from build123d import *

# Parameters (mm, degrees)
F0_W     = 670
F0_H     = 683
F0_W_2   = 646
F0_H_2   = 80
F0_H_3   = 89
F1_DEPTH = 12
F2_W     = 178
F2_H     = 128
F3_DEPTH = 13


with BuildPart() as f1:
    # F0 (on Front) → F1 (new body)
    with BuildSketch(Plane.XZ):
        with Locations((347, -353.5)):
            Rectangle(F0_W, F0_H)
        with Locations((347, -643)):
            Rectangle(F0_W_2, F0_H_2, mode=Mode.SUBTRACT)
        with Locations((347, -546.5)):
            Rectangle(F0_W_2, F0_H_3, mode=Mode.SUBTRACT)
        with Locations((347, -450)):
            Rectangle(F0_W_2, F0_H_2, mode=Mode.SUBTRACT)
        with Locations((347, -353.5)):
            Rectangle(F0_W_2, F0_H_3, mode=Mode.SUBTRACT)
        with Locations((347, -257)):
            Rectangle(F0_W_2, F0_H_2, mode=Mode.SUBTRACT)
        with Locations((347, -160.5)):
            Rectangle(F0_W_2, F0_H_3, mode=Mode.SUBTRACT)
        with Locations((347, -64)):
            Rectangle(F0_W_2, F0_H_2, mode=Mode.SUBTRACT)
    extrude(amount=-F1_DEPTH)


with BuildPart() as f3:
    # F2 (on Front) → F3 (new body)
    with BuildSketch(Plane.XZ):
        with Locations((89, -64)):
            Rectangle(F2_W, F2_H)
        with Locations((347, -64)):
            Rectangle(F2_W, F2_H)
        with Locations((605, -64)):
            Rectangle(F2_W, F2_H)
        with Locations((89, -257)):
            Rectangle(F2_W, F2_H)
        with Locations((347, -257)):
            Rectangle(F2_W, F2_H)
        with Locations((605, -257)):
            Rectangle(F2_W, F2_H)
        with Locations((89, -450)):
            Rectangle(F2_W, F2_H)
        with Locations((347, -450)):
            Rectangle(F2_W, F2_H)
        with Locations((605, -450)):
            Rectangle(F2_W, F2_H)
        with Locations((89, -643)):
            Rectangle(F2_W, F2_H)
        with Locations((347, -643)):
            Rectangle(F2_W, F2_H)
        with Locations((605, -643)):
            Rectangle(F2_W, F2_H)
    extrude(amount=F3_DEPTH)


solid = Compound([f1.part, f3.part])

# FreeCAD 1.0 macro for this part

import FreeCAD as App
import Part
import Sketcher
from FreeCAD import Vector


def add_polygon(sketch, points):
    """Adds a closed chain of lines whose ends are joined by coincident constraints."""
    first, n = sketch.GeometryCount, len(points)
    for a, b in zip(points, points[1:] + points[:1]):
        sketch.addGeometry(Part.LineSegment(App.Vector(*a, 0), App.Vector(*b, 0)), False)
    for i in range(n):
        sketch.addConstraint(Sketcher.Constraint("Coincident", first + i, 2, first + (i + 1) % n, 1))

doc = App.newDocument("Part")
body = doc.addObject("PartDesign::Body", "Body")

sketch1 = body.newObject("Sketcher::SketchObject", "Sketch")
sketch1.AttachmentSupport = (doc.getObject("XZ_Plane"), [""])
sketch1.MapMode = "FlatFace"
add_polygon(sketch1, [(12, -12), (12, -695), (682, -695), (682, -12)])
add_polygon(sketch1, [(670, -683), (24, -683), (24, -603), (670, -603)])
add_polygon(sketch1, [(670, -591), (24, -591), (24, -502), (670, -502)])
add_polygon(sketch1, [(670, -490), (24, -490), (24, -410), (670, -410)])
add_polygon(sketch1, [(670, -398), (24, -398), (24, -309), (670, -309)])
add_polygon(sketch1, [(670, -297), (24, -297), (24, -217), (670, -217)])
add_polygon(sketch1, [(670, -205), (24, -205), (24, -116), (670, -116)])
add_polygon(sketch1, [(670, -104), (24, -104), (24, -24), (670, -24)])
sketch1.addConstraint([
    Sketcher.Constraint("Vertical", 0),
    Sketcher.Constraint("Horizontal", 1),
    Sketcher.Constraint("Vertical", 2),
    Sketcher.Constraint("Horizontal", 3),
    Sketcher.Constraint("Horizontal", 4),
    Sketcher.Constraint("Vertical", 5),
    Sketcher.Constraint("Horizontal", 6),
    Sketcher.Constraint("Vertical", 7),
    Sketcher.Constraint("Horizontal", 8),
    Sketcher.Constraint("Vertical", 9),
    Sketcher.Constraint("Horizontal", 10),
    Sketcher.Constraint("Vertical", 11),
    Sketcher.Constraint("Horizontal", 12),
    Sketcher.Constraint("Vertical", 13),
    Sketcher.Constraint("Horizontal", 14),
    Sketcher.Constraint("Vertical", 15),
    Sketcher.Constraint("Horizontal", 16),
    Sketcher.Constraint("Vertical", 17),
    Sketcher.Constraint("Horizontal", 18),
    Sketcher.Constraint("Vertical", 19),
    Sketcher.Constraint("Horizontal", 20),
    Sketcher.Constraint("Vertical", 21),
    Sketcher.Constraint("Horizontal", 22),
    Sketcher.Constraint("Vertical", 23),
    Sketcher.Constraint("Horizontal", 24),
    Sketcher.Constraint("Vertical", 25),
    Sketcher.Constraint("Horizontal", 26),
    Sketcher.Constraint("Vertical", 27),
    Sketcher.Constraint("Horizontal", 28),
    Sketcher.Constraint("Vertical", 29),
    Sketcher.Constraint("Horizontal", 30),
    Sketcher.Constraint("Vertical", 31),
    Sketcher.Constraint("Vertical", 5, 2, 8, 2),
    Sketcher.Constraint("Vertical", 7, 2, 10, 2),
    Sketcher.Constraint("Vertical", 9, 2, 12, 2),
    Sketcher.Constraint("Vertical", 11, 2, 14, 2),
    Sketcher.Constraint("Vertical", 13, 2, 16, 2),
    Sketcher.Constraint("Vertical", 15, 2, 18, 2),
    Sketcher.Constraint("Vertical", 17, 2, 20, 2),
    Sketcher.Constraint("Vertical", 19, 2, 22, 2),
    Sketcher.Constraint("Vertical", 21, 2, 24, 2),
    Sketcher.Constraint("Vertical", 23, 2, 26, 2),
    Sketcher.Constraint("Vertical", 25, 2, 28, 2),
    Sketcher.Constraint("Vertical", 27, 2, 30, 2),
    Sketcher.Constraint("Equal", 7, 13),
    Sketcher.Constraint("Equal", 11, 17),
    Sketcher.Constraint("Equal", 15, 21),
    Sketcher.Constraint("Equal", 19, 25),
    Sketcher.Constraint("Equal", 23, 29),
    Sketcher.Constraint("DistanceX", 1, 1, 1, 2, 670.0),
    Sketcher.Constraint("DistanceX", 4, 2, 4, 1, 646.0),
    Sketcher.Constraint("DistanceY", 0, 2, 0, 1, 683.0),
    Sketcher.Constraint("DistanceY", 5, 1, 5, 2, 80.0),
    Sketcher.Constraint("DistanceY", 9, 1, 9, 2, 89.0),
    Sketcher.Constraint("DistanceX", -1, 1, 0, 2, 12.0),
    Sketcher.Constraint("DistanceY", 0, 2, -1, 1, 695.0),
    Sketcher.Constraint("DistanceX", -1, 1, 4, 2, 24.0),
    Sketcher.Constraint("DistanceY", 4, 2, -1, 1, 683.0),
    Sketcher.Constraint("DistanceY", 8, 2, -1, 1, 591.0),
    Sketcher.Constraint("DistanceY", 12, 2, -1, 1, 490.0),
    Sketcher.Constraint("DistanceY", 16, 2, -1, 1, 398.0),
    Sketcher.Constraint("DistanceY", 20, 2, -1, 1, 297.0),
    Sketcher.Constraint("DistanceY", 24, 2, -1, 1, 205.0),
    Sketcher.Constraint("DistanceY", 28, 2, -1, 1, 104.0),
])
pad1 = body.newObject("PartDesign::Pad", "Pad")
pad1.Profile = sketch1
pad1.Length = 12
pad1.Reversed = True
body2 = doc.addObject("PartDesign::Body", "Body001")
body2.AllowCompound = True

sketch2 = body2.newObject("Sketcher::SketchObject", "Sketch001")
sketch2.AttachmentSupport = (doc.getObject("XZ_Plane001"), [""])
sketch2.MapMode = "FlatFace"
add_polygon(sketch2, [(0, 0), (0, -128), (178, -128), (178, 0)])
add_polygon(sketch2, [(258, 0), (258, -128), (436, -128), (436, 0)])
add_polygon(sketch2, [(516, 0), (516, -128), (694, -128), (694, 0)])
add_polygon(sketch2, [(0, -193), (0, -321), (178, -321), (178, -193)])
add_polygon(sketch2, [(258, -193), (258, -321), (436, -321), (436, -193)])
add_polygon(sketch2, [(516, -193), (516, -321), (694, -321), (694, -193)])
add_polygon(sketch2, [(0, -386), (0, -514), (178, -514), (178, -386)])
add_polygon(sketch2, [(258, -386), (258, -514), (436, -514), (436, -386)])
add_polygon(sketch2, [(516, -386), (516, -514), (694, -514), (694, -386)])
add_polygon(sketch2, [(0, -579), (0, -707), (178, -707), (178, -579)])
add_polygon(sketch2, [(258, -579), (258, -707), (436, -707), (436, -579)])
add_polygon(sketch2, [(516, -579), (516, -707), (694, -707), (694, -579)])
sketch2.addConstraint([
    Sketcher.Constraint("Vertical", 0),
    Sketcher.Constraint("Horizontal", 1),
    Sketcher.Constraint("Vertical", 2),
    Sketcher.Constraint("Horizontal", 3),
    Sketcher.Constraint("Vertical", 4),
    Sketcher.Constraint("Horizontal", 5),
    Sketcher.Constraint("Vertical", 6),
    Sketcher.Constraint("Horizontal", 7),
    Sketcher.Constraint("Vertical", 8),
    Sketcher.Constraint("Horizontal", 9),
    Sketcher.Constraint("Vertical", 10),
    Sketcher.Constraint("Horizontal", 11),
    Sketcher.Constraint("Vertical", 12),
    Sketcher.Constraint("Horizontal", 13),
    Sketcher.Constraint("Vertical", 14),
    Sketcher.Constraint("Horizontal", 15),
    Sketcher.Constraint("Vertical", 16),
    Sketcher.Constraint("Horizontal", 17),
    Sketcher.Constraint("Vertical", 18),
    Sketcher.Constraint("Horizontal", 19),
    Sketcher.Constraint("Vertical", 20),
    Sketcher.Constraint("Horizontal", 21),
    Sketcher.Constraint("Vertical", 22),
    Sketcher.Constraint("Horizontal", 23),
    Sketcher.Constraint("Vertical", 24),
    Sketcher.Constraint("Horizontal", 25),
    Sketcher.Constraint("Vertical", 26),
    Sketcher.Constraint("Horizontal", 27),
    Sketcher.Constraint("Vertical", 28),
    Sketcher.Constraint("Horizontal", 29),
    Sketcher.Constraint("Vertical", 30),
    Sketcher.Constraint("Horizontal", 31),
    Sketcher.Constraint("Vertical", 32),
    Sketcher.Constraint("Horizontal", 33),
    Sketcher.Constraint("Vertical", 34),
    Sketcher.Constraint("Horizontal", 35),
    Sketcher.Constraint("Vertical", 36),
    Sketcher.Constraint("Horizontal", 37),
    Sketcher.Constraint("Vertical", 38),
    Sketcher.Constraint("Horizontal", 39),
    Sketcher.Constraint("Vertical", 40),
    Sketcher.Constraint("Horizontal", 41),
    Sketcher.Constraint("Vertical", 42),
    Sketcher.Constraint("Horizontal", 43),
    Sketcher.Constraint("Vertical", 44),
    Sketcher.Constraint("Horizontal", 45),
    Sketcher.Constraint("Vertical", 46),
    Sketcher.Constraint("Horizontal", 47),
    Sketcher.Constraint("Coincident", 3, 2, -1, 1),
    Sketcher.Constraint("PointOnObject", 6, 2, -1),
    Sketcher.Constraint("PointOnObject", 10, 2, -1),
    Sketcher.Constraint("PointOnObject", 12, 2, -2),
    Sketcher.Constraint("PointOnObject", 24, 2, -2),
    Sketcher.Constraint("PointOnObject", 36, 2, -2),
    Sketcher.Constraint("Horizontal", 1, 2, 4, 2),
    Sketcher.Constraint("Horizontal", 5, 2, 8, 2),
    Sketcher.Constraint("Horizontal", 13, 2, 16, 2),
    Sketcher.Constraint("Horizontal", 15, 2, 18, 2),
    Sketcher.Constraint("Horizontal", 17, 2, 20, 2),
    Sketcher.Constraint("Horizontal", 19, 2, 22, 2),
    Sketcher.Constraint("Horizontal", 25, 2, 28, 2),
    Sketcher.Constraint("Horizontal", 27, 2, 30, 2),
    Sketcher.Constraint("Horizontal", 29, 2, 32, 2),
    Sketcher.Constraint("Horizontal", 31, 2, 34, 2),
    Sketcher.Constraint("Horizontal", 37, 2, 40, 2),
    Sketcher.Constraint("Horizontal", 39, 2, 42, 2),
    Sketcher.Constraint("Horizontal", 41, 2, 44, 2),
    Sketcher.Constraint("Horizontal", 43, 2, 46, 2),
    Sketcher.Constraint("Vertical", 2, 2, 13, 2),
    Sketcher.Constraint("Vertical", 7, 2, 16, 2),
    Sketcher.Constraint("Vertical", 6, 2, 17, 2),
    Sketcher.Constraint("Vertical", 11, 2, 20, 2),
    Sketcher.Constraint("Vertical", 10, 2, 21, 2),
    Sketcher.Constraint("Vertical", 14, 2, 25, 2),
    Sketcher.Constraint("Vertical", 19, 2, 28, 2),
    Sketcher.Constraint("Vertical", 18, 2, 29, 2),
    Sketcher.Constraint("Vertical", 23, 2, 32, 2),
    Sketcher.Constraint("Vertical", 22, 2, 33, 2),
    Sketcher.Constraint("Vertical", 26, 2, 37, 2),
    Sketcher.Constraint("Vertical", 31, 2, 40, 2),
    Sketcher.Constraint("Vertical", 30, 2, 41, 2),
    Sketcher.Constraint("Vertical", 35, 2, 44, 2),
    Sketcher.Constraint("Vertical", 34, 2, 45, 2),
    Sketcher.Constraint("Equal", 3, 5),
    Sketcher.Constraint("Equal", 7, 9),
    Sketcher.Constraint("Equal", 10, 12),
    Sketcher.Constraint("Equal", 22, 24),
    Sketcher.Constraint("Equal", 34, 36),
    Sketcher.Constraint("DistanceX", 1, 1, 1, 2, 178.0),
    Sketcher.Constraint("DistanceY", 0, 2, 0, 1, 128.0),
    Sketcher.Constraint("DistanceX", -1, 1, 4, 2, 258.0),
    Sketcher.Constraint("DistanceX", -1, 1, 8, 2, 516.0),
    Sketcher.Constraint("DistanceY", 12, 2, -1, 1, 321.0),
    Sketcher.Constraint("DistanceY", 24, 2, -1, 1, 514.0),
    Sketcher.Constraint("DistanceY", 36, 2, -1, 1, 707.0),
])
pad2 = body2.newObject("PartDesign::Pad", "Pad001")
pad2.Profile = sketch2
pad2.Length = 13

doc.recompute()
